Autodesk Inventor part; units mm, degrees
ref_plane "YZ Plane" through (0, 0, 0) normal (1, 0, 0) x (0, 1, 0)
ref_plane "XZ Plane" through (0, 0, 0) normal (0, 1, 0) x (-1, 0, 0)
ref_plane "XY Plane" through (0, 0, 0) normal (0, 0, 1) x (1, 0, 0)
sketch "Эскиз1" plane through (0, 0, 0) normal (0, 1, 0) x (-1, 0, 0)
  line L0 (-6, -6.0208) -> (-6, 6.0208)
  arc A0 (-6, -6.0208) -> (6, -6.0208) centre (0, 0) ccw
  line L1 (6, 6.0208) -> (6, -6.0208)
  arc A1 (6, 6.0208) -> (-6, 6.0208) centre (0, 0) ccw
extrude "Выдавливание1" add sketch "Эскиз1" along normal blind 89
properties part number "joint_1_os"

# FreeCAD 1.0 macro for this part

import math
import FreeCAD as App
import Part
import Sketcher

V = App.Vector
Q = App.Units.Quantity

doc = App.newDocument("Part")
body = doc.addObject("PartDesign::Body", "Body")

# Sketch on XZ plane
sketch1 = body.newObject("Sketcher::SketchObject", "Sketch")
sketch1.AttachmentSupport = (doc.getObject("XZ_Plane"), [""])
sketch1.MapMode = "FlatFace"
sketch1.addGeometry(Part.LineSegment(V(6, 6, 0), V(6, -6, 0)), False)
sketch1.addGeometry(Part.ArcOfCircle(Part.Circle(V(0, 0, 0), V(0, 0, 1), 9), math.radians(-135), math.radians(-45)), False)
sketch1.addGeometry(Part.LineSegment(V(-6, -6, 0), V(-6, 6, 0)), False)
sketch1.addGeometry(Part.ArcOfCircle(Part.Circle(V(0, 0, 0), V(0, 0, 1), 9), math.radians(45), math.radians(135)), False)
sketch1.addConstraint(Sketcher.Constraint("Coincident", 0, 2, 1, 2))
sketch1.addConstraint(Sketcher.Constraint("Coincident", 1, 1, 2, 1))
sketch1.addConstraint(Sketcher.Constraint("Coincident", 2, 2, 3, 2))
sketch1.addConstraint(Sketcher.Constraint("Coincident", 3, 1, 0, 1))
sketch1.addConstraint(Sketcher.Constraint("Vertical", 0))
sketch1.addConstraint(Sketcher.Constraint("Vertical", 2))
sketch1.addConstraint(Sketcher.Constraint("Coincident", 1, 3, -1, 1))
sketch1.addConstraint(Sketcher.Constraint("Coincident", 3, 3, -1, 1))
sketch1.addConstraint(Sketcher.Constraint("Equal", 1, 3))
sketch1.addConstraint(Sketcher.Constraint("Horizontal", 0, 2, 1, 1))
sketch1.addConstraint(Sketcher.Constraint("Radius", 1, Q("8.5 mm")))
sketch1.addConstraint(Sketcher.Constraint("DistanceX", -1, 1, 0, 2, Q("6 mm")))
pad1 = body.newObject("PartDesign::Pad", "Pad")
pad1.Profile = sketch1
pad1.Length = 89
pad1.Reversed = True

doc.recompute()
